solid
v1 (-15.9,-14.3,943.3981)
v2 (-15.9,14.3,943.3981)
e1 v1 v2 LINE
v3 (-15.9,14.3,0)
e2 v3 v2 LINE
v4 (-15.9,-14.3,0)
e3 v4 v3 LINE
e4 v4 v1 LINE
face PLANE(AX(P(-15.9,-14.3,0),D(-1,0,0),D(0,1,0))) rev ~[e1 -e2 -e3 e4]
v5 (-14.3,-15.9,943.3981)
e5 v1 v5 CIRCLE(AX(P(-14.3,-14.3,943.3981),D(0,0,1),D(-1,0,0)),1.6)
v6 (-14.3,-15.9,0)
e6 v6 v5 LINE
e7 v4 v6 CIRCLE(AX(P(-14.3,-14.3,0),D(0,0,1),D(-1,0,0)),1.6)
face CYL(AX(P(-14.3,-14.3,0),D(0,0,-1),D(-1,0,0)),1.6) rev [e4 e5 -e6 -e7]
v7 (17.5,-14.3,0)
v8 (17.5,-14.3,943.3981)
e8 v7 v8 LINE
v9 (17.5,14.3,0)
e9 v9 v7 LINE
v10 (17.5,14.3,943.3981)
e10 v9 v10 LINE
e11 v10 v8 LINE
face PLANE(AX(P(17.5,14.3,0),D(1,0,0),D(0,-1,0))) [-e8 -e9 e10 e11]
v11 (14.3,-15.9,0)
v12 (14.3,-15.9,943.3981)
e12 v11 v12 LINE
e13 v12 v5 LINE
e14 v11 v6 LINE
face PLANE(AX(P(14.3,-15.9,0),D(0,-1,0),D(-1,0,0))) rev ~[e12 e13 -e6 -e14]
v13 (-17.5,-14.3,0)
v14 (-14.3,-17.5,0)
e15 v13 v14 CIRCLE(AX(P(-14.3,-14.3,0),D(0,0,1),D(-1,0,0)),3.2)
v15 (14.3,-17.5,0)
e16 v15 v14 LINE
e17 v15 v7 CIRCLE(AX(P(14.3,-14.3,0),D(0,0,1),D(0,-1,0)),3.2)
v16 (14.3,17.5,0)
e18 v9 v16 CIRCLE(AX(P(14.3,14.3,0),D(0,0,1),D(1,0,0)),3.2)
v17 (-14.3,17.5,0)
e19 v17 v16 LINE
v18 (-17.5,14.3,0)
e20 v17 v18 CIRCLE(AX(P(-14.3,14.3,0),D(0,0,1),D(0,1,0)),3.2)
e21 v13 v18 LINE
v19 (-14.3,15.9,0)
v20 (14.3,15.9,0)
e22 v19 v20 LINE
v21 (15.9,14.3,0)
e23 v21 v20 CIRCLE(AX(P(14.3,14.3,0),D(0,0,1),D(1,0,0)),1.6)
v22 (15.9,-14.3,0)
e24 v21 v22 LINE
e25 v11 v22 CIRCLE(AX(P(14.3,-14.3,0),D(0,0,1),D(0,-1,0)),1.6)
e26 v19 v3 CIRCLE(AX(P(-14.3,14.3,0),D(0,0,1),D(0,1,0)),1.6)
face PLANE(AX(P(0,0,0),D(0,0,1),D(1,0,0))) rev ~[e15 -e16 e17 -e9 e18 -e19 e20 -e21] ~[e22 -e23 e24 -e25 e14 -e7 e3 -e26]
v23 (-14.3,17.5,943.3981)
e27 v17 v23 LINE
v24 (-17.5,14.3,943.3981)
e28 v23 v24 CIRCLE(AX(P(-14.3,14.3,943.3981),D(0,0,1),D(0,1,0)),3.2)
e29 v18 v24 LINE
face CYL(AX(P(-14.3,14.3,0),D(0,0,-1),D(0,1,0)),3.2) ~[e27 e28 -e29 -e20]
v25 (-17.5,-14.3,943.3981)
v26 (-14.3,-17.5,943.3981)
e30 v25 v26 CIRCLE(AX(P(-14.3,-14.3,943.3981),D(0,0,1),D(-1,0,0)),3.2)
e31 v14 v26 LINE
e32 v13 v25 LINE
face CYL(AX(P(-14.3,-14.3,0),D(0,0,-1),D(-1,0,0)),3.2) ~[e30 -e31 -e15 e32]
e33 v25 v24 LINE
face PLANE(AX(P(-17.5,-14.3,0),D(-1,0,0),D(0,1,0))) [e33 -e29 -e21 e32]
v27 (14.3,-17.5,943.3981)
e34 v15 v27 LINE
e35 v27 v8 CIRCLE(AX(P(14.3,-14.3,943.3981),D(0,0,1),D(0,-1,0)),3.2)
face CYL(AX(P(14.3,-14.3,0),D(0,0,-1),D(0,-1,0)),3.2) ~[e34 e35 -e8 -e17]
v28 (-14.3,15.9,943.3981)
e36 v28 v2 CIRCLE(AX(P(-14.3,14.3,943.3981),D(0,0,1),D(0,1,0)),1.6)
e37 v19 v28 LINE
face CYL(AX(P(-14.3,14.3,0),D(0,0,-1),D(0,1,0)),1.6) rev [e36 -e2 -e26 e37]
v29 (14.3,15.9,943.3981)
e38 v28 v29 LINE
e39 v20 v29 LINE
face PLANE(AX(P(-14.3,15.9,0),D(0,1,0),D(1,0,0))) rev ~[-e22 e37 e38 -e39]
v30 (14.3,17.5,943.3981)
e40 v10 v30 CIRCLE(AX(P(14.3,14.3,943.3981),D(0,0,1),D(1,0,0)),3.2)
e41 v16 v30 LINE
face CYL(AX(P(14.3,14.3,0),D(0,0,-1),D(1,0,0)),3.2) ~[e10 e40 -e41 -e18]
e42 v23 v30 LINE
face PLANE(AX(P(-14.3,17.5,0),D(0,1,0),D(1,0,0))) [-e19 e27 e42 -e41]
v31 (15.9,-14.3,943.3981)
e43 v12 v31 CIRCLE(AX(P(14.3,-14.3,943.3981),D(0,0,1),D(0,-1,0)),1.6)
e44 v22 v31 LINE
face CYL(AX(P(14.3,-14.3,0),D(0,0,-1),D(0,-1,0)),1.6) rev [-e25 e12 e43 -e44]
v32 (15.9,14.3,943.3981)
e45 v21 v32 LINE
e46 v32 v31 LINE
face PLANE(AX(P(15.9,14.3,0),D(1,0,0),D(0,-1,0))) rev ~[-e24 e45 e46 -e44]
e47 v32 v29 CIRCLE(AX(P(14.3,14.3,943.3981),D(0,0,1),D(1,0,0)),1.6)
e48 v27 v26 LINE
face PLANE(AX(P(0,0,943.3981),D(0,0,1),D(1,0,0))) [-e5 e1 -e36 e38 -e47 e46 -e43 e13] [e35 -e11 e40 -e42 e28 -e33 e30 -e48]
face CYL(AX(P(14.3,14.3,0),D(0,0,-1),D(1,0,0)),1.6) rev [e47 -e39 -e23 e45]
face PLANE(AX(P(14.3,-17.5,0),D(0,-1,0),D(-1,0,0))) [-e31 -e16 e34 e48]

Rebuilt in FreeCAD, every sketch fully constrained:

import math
import FreeCAD as App
import Part
import Sketcher

V = App.Vector
Q = App.Units.Quantity

doc = App.newDocument("Part")
body = doc.addObject("PartDesign::Body", "Body")

# Sketch on XY plane
sketch1 = body.newObject("Sketcher::SketchObject", "Sketch")
sketch1.AttachmentSupport = (doc.getObject("XY_Plane"), [""])
sketch1.MapMode = "FlatFace"
sketch1.addGeometry([
    Part.LineSegment(V(-17.5, 14.3, 0), V(-17.5, -14.3, 0)),  # 0
    Part.ArcOfCircle(Part.Circle(V(-14.3, -14.3, 0), V(0, 0, 1), 3.2), math.radians(180), math.radians(270)),  # 1
    Part.LineSegment(V(-14.3, -17.5, 0), V(14.3, -17.5, 0)),  # 2
    Part.ArcOfCircle(Part.Circle(V(14.3, -14.3, 0), V(0, 0, 1), 3.2), math.radians(-90), math.radians(0)),  # 3
    Part.LineSegment(V(17.5, -14.3, 0), V(17.5, 14.3, 0)),  # 4
    Part.ArcOfCircle(Part.Circle(V(14.3, 14.3, 0), V(0, 0, 1), 3.2), math.radians(0), math.radians(90)),  # 5
    Part.LineSegment(V(14.3, 17.5, 0), V(-14.3, 17.5, 0)),  # 6
    Part.ArcOfCircle(Part.Circle(V(-14.3, 14.3, 0), V(0, 0, 1), 3.2), math.radians(90), math.radians(180)),  # 7
    Part.ArcOfCircle(Part.Circle(V(-14.3, 14.3, 0), V(0, 0, 1), 1.6), math.radians(90), math.radians(180)),  # 8
    Part.LineSegment(V(-14.3, 15.9, 0), V(14.3, 15.9, 0)),  # 9
    Part.ArcOfCircle(Part.Circle(V(14.3, 14.3, 0), V(0, 0, 1), 1.6), math.radians(0), math.radians(90)),  # 10
    Part.LineSegment(V(15.9, 14.3, 0), V(15.9, -14.3, 0)),  # 11
    Part.ArcOfCircle(Part.Circle(V(14.3, -14.3, 0), V(0, 0, 1), 1.6), math.radians(-90), math.radians(0)),  # 12
    Part.LineSegment(V(14.3, -15.9, 0), V(-14.3, -15.9, 0)),  # 13
    Part.ArcOfCircle(Part.Circle(V(-14.3, -14.3, 0), V(0, 0, 1), 1.6), math.radians(180), math.radians(270)),  # 14
    Part.LineSegment(V(-15.9, -14.3, 0), V(-15.9, 14.3, 0)),  # 15
], False)
sketch1.addConstraint([
    Sketcher.Constraint("Tangent", 0, 2, 1, 1),
    Sketcher.Constraint("Tangent", 1, 2, 2, 1),
    Sketcher.Constraint("Tangent", 2, 2, 3, 1),
    Sketcher.Constraint("Tangent", 3, 2, 4, 1),
    Sketcher.Constraint("Tangent", 4, 2, 5, 1),
    Sketcher.Constraint("Tangent", 5, 2, 6, 1),
    Sketcher.Constraint("Tangent", 6, 2, 7, 1),
    Sketcher.Constraint("Tangent", 7, 2, 0, 1),
    Sketcher.Constraint("Tangent", 8, 1, 9, 1),
    Sketcher.Constraint("Tangent", 9, 2, 10, 2),
    Sketcher.Constraint("Tangent", 10, 1, 11, 1),
    Sketcher.Constraint("Tangent", 11, 2, 12, 2),
    Sketcher.Constraint("Tangent", 12, 1, 13, 1),
    Sketcher.Constraint("Tangent", 13, 2, 14, 2),
    Sketcher.Constraint("Tangent", 14, 1, 15, 1),
    Sketcher.Constraint("Tangent", 15, 2, 8, 2),
    Sketcher.Constraint("Vertical", 0),
    Sketcher.Constraint("Horizontal", 2),
    Sketcher.Constraint("Vertical", 4),
    Sketcher.Constraint("Horizontal", 6),
    Sketcher.Constraint("Horizontal", 9),
    Sketcher.Constraint("Vertical", 11),
    Sketcher.Constraint("Horizontal", 13),
    Sketcher.Constraint("Vertical", 15),
    Sketcher.Constraint("Coincident", 8, 3, 7, 3),
    Sketcher.Constraint("Coincident", 10, 3, 5, 3),
    Sketcher.Constraint("Coincident", 12, 3, 3, 3),
    Sketcher.Constraint("Equal", 1, 3),
    Sketcher.Constraint("Equal", 3, 5),
    Sketcher.Constraint("Equal", 5, 7),
    Sketcher.Constraint("Equal", 12, 14),
    Sketcher.Constraint("Symmetric", 1, 3, 5, 3, -1, 1),
    Sketcher.Constraint("Equal", 13, 0),
    Sketcher.Constraint("Radius", 1, Q("3.2 mm")),
    Sketcher.Constraint("Radius", 8, Q("1.6 mm")),
    Sketcher.Constraint("DistanceX", 0, 2, -1, 1, Q("17.5 mm")),
])
pad1 = body.newObject("PartDesign::Pad", "Pad")
pad1.Profile = sketch1
pad1.Length = 943.3981

doc.recompute()
